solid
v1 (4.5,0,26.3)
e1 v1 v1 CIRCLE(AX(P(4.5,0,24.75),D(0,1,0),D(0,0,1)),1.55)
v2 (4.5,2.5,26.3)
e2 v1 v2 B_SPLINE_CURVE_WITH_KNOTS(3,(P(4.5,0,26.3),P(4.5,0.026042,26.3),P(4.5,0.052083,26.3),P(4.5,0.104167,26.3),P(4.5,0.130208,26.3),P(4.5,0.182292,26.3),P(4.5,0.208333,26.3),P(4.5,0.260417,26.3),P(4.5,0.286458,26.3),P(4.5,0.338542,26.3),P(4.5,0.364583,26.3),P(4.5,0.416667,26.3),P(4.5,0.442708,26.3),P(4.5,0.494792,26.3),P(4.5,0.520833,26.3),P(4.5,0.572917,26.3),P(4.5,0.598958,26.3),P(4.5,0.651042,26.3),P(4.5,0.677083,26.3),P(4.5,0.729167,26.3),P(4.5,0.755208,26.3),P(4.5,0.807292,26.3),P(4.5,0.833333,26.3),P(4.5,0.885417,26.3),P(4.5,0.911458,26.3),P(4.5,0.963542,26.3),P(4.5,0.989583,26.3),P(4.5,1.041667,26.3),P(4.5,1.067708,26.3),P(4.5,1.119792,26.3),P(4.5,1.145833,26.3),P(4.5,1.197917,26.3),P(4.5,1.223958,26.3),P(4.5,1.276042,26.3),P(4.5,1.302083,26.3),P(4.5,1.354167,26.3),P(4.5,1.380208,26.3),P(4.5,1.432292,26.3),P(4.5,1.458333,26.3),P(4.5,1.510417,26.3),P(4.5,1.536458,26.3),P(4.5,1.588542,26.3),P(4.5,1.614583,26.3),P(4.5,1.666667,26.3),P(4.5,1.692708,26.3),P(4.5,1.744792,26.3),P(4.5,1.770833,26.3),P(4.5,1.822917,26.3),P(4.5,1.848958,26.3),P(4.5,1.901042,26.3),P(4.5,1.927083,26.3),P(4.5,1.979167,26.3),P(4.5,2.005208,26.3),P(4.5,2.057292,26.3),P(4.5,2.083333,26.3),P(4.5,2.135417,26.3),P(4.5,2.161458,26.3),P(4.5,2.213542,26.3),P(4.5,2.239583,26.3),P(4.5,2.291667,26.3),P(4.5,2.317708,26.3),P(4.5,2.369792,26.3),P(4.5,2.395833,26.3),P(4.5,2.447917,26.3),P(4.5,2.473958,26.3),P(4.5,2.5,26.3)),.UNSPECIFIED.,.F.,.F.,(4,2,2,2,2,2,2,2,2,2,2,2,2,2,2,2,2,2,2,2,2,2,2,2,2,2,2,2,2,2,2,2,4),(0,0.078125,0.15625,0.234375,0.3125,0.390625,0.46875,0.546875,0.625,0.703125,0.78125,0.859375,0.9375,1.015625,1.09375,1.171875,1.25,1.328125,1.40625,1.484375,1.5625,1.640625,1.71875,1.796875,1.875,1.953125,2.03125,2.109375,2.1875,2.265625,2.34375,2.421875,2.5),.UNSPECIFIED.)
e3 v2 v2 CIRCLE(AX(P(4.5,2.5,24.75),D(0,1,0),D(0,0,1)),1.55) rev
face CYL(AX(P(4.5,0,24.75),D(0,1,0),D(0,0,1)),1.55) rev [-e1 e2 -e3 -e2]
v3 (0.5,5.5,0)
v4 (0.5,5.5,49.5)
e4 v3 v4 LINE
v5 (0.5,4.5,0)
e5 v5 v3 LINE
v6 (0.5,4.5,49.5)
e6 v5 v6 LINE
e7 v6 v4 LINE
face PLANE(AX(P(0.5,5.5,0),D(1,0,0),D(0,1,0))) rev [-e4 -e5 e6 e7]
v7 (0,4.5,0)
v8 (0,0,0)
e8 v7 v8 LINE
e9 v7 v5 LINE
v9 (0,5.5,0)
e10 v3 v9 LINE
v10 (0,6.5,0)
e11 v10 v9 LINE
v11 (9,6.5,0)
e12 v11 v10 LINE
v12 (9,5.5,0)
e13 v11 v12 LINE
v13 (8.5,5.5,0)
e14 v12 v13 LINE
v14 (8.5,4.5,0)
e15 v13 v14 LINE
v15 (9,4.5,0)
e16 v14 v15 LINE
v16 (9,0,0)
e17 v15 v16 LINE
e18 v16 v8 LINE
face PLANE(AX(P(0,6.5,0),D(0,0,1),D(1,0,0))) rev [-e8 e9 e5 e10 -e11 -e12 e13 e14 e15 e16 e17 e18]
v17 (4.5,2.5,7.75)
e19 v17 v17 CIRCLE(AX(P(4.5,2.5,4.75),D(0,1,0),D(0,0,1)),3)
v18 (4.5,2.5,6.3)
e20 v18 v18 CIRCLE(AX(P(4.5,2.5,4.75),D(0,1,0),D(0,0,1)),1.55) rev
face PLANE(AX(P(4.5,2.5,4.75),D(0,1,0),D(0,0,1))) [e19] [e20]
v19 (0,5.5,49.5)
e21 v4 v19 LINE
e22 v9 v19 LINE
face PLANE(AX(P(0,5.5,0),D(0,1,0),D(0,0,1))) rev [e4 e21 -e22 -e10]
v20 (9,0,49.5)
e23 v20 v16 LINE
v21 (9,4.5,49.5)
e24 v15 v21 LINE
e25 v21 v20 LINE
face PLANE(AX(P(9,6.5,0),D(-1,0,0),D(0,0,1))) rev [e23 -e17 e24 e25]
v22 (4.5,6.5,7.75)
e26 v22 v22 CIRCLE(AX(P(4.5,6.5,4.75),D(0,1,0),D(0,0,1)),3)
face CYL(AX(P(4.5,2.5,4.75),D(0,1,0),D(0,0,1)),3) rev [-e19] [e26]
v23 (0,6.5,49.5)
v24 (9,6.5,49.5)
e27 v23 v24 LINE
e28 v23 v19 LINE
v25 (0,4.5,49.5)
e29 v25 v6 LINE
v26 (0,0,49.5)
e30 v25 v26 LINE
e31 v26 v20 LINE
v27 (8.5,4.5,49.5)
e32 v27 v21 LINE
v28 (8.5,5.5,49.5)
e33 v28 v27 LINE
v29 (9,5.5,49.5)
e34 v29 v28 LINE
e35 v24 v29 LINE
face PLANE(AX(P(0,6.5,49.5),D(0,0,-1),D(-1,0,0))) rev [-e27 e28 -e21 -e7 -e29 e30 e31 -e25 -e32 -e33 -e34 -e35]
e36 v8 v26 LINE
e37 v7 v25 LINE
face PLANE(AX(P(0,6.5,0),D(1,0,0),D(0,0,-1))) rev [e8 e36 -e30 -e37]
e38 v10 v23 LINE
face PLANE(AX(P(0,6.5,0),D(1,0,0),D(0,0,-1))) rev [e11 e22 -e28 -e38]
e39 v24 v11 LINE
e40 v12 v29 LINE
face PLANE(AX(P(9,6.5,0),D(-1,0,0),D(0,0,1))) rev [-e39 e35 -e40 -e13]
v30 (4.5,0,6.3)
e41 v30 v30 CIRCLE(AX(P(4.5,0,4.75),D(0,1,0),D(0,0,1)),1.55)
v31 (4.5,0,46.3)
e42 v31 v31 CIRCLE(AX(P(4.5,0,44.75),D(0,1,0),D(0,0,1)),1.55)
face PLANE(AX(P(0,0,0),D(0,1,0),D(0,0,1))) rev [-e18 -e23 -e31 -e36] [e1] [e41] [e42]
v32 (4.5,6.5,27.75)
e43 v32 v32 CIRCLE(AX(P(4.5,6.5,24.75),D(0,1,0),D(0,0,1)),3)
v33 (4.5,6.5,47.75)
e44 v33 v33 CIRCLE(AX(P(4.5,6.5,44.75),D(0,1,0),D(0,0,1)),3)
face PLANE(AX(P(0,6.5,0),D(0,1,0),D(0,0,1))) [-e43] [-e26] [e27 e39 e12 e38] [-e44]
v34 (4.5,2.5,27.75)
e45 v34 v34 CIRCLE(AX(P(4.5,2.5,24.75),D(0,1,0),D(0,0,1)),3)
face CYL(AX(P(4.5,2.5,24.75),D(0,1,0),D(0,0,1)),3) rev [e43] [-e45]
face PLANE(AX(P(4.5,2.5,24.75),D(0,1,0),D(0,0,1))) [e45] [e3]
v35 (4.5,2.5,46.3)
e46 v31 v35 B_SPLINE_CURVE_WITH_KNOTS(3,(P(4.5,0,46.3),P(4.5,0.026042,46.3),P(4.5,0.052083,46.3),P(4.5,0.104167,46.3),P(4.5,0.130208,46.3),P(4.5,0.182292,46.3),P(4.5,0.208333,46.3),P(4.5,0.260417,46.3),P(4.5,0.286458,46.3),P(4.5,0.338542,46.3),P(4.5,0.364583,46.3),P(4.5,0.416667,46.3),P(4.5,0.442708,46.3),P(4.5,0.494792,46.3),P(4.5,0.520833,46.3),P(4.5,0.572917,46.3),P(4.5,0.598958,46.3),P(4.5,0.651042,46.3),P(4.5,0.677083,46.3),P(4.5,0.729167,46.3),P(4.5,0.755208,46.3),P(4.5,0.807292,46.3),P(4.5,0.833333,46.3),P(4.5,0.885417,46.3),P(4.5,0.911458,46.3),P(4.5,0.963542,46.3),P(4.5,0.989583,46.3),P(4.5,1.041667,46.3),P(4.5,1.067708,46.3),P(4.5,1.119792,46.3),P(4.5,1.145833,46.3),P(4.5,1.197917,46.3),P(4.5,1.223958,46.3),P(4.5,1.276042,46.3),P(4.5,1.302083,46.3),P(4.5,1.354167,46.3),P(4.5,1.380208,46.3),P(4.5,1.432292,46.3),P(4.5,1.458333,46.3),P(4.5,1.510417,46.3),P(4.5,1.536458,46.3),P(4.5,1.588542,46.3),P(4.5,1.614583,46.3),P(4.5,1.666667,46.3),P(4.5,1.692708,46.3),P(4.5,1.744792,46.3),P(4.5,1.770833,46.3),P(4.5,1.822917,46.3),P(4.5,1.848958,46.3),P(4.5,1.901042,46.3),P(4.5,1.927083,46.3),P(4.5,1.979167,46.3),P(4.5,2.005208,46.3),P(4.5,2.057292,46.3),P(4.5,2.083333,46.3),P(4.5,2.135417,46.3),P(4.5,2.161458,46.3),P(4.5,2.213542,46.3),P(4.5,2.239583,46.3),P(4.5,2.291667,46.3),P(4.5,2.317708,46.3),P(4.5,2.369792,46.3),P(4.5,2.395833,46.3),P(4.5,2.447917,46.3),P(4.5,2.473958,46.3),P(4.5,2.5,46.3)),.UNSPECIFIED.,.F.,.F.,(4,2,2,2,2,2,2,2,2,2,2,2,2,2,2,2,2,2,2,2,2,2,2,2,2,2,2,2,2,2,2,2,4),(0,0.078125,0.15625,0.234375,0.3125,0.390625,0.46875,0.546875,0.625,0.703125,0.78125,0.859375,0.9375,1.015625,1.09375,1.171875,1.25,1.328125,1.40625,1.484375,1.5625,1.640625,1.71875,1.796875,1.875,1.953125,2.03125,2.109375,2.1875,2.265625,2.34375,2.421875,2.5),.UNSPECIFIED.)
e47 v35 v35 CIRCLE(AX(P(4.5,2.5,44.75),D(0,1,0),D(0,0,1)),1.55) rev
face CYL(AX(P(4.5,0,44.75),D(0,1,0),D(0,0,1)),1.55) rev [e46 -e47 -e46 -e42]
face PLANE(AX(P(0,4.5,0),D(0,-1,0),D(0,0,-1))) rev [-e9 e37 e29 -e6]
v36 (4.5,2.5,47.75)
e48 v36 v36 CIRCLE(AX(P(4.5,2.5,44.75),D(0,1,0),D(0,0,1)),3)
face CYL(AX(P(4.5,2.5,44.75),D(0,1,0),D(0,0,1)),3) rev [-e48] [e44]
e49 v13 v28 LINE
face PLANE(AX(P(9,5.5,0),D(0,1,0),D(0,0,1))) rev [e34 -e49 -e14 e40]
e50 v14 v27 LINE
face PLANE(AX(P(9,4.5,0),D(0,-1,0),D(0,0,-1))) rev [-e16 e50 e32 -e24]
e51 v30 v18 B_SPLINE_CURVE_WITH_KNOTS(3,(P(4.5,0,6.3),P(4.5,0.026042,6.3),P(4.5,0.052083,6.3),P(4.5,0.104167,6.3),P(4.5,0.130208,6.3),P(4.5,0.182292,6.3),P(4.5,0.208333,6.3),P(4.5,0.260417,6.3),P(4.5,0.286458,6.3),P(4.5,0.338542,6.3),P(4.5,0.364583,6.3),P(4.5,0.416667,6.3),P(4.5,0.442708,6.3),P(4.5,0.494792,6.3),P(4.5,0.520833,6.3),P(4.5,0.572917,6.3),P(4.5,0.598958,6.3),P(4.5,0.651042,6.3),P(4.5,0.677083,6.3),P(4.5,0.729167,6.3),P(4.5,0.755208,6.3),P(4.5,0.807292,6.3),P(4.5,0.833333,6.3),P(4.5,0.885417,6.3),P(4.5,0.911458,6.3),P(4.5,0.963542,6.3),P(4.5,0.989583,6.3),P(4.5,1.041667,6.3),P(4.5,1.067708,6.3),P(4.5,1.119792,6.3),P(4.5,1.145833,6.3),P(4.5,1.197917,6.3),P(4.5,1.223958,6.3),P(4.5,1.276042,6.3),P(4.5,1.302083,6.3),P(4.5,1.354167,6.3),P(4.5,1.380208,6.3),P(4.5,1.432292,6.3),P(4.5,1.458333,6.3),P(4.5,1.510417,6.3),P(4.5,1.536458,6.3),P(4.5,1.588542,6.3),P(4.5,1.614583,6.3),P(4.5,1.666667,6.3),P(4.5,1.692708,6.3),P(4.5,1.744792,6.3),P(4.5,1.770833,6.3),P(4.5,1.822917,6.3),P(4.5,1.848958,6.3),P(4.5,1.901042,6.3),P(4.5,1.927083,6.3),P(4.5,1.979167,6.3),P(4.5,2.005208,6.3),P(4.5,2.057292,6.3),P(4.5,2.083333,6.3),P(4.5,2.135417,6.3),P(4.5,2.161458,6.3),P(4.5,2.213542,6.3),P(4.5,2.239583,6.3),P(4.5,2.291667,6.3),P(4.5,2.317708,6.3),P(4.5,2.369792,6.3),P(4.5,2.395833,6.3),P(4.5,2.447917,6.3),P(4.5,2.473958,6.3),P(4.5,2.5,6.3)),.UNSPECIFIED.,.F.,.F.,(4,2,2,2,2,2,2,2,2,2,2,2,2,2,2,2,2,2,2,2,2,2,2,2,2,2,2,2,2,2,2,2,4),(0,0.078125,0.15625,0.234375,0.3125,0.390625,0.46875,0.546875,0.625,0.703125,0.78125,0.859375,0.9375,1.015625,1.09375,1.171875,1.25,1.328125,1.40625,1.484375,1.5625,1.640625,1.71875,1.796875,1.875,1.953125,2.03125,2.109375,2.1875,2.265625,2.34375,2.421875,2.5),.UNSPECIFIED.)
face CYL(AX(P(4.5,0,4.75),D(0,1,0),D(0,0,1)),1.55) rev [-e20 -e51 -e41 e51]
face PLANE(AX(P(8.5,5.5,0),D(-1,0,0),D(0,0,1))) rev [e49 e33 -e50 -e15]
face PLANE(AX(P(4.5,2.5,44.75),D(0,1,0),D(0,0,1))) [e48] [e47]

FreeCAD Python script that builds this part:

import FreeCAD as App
import Part
import Sketcher


def add_polygon(sketch, points):
    """Adds a closed chain of lines whose ends are joined by coincident constraints."""
    first, n = sketch.GeometryCount, len(points)
    for a, b in zip(points, points[1:] + points[:1]):
        sketch.addGeometry(Part.LineSegment(App.Vector(*a, 0), App.Vector(*b, 0)), False)
    for i in range(n):
        sketch.addConstraint(Sketcher.Constraint("Coincident", first + i, 2, first + (i + 1) % n, 1))

doc = App.newDocument("Part")
body = doc.addObject("PartDesign::Body", "Body")

# Sketch on XZ plane
sketch1 = body.newObject("Sketcher::SketchObject", "Sketch")
sketch1.AttachmentSupport = (doc.getObject("XZ_Plane"), [""])
sketch1.MapMode = "FlatFace"
add_polygon(sketch1, [(0, 0), (0, 50), (9, 50), (9, 0)])  # lines 0-3
sketch1.addConstraint(Sketcher.Constraint("Vertical", 0))
sketch1.addConstraint(Sketcher.Constraint("Horizontal", 1))
sketch1.addConstraint(Sketcher.Constraint("Vertical", 2))
sketch1.addConstraint(Sketcher.Constraint("Horizontal", 3))
sketch1.addConstraint(Sketcher.Constraint("Coincident", 3, 2, -1, 1))
sketch1.addConstraint(Sketcher.Constraint("DistanceX", 1, 1, 1, 2, 9.0))
sketch1.addConstraint(Sketcher.Constraint("DistanceY", 0, 1, 0, 2, 49.5))
pad1 = body.newObject("PartDesign::Pad", "Pad")
pad1.Profile = sketch1
pad1.Length = 6.5
pad1.Reversed = True

# Sketch on XZ plane
sketch2 = body.newObject("Sketcher::SketchObject", "Sketch001")
sketch2.AttachmentSupport = (doc.getObject("XZ_Plane"), [""])
sketch2.MapMode = "FlatFace"
sketch2.AttachmentOffset = App.Placement(App.Vector(0, 0, -6.5), App.Rotation())
sketch2.addGeometry(Part.Circle(App.Vector(4.5, 24.8, 0), App.Vector(0, 0, 1), 1.6), False)
sketch2.addGeometry(Part.Circle(App.Vector(4.5, 4.8, 0), App.Vector(0, 0, 1), 1.6), False)
sketch2.addGeometry(Part.Circle(App.Vector(4.5, 44.8, 0), App.Vector(0, 0, 1), 1.6), False)
sketch2.addConstraint(Sketcher.Constraint("Equal", 0, 1))
sketch2.addConstraint(Sketcher.Constraint("Equal", 1, 2))
sketch2.addConstraint(Sketcher.Constraint("Vertical", 0, 3, 1, 3))
sketch2.addConstraint(Sketcher.Constraint("Vertical", 1, 3, 2, 3))
sketch2.addConstraint(Sketcher.Constraint("Diameter", 0, 3.1))
sketch2.addConstraint(Sketcher.Constraint("DistanceY", 1, 3, 0, 3, 20.0))
sketch2.addConstraint(Sketcher.Constraint("DistanceY", 0, 3, 2, 3, 20.0))
sketch2.addConstraint(Sketcher.Constraint("DistanceX", -1, 1, 0, 3, 4.5))
sketch2.addConstraint(Sketcher.Constraint("DistanceY", -1, 1, 0, 3, 24.75))
pocket1 = body.newObject("PartDesign::Pocket", "Pocket")
pocket1.Profile = sketch2
pocket1.Type = "ThroughAll"
pocket1.Reversed = True

# Sketch on XZ plane
sketch3 = body.newObject("Sketcher::SketchObject", "Sketch002")
sketch3.AttachmentSupport = (doc.getObject("XZ_Plane"), [""])
sketch3.MapMode = "FlatFace"
sketch3.AttachmentOffset = App.Placement(App.Vector(0, 0, -6.5), App.Rotation())
sketch3.addGeometry(Part.Circle(App.Vector(4.5, 44.8, 0), App.Vector(0, 0, 1), 3), False)
sketch3.addGeometry(Part.Circle(App.Vector(4.5, 24.8, 0), App.Vector(0, 0, 1), 3), False)
sketch3.addGeometry(Part.Circle(App.Vector(4.5, 4.8, 0), App.Vector(0, 0, 1), 3), False)
sketch3.addConstraint(Sketcher.Constraint("Equal", 0, 1))
sketch3.addConstraint(Sketcher.Constraint("Equal", 1, 2))
sketch3.addConstraint(Sketcher.Constraint("Vertical", 0, 3, 1, 3))
sketch3.addConstraint(Sketcher.Constraint("Vertical", 1, 3, 2, 3))
sketch3.addConstraint(Sketcher.Constraint("Diameter", 0, 6.0))
sketch3.addConstraint(Sketcher.Constraint("DistanceY", 1, 3, 0, 3, 20.0))
sketch3.addConstraint(Sketcher.Constraint("DistanceY", 2, 3, 1, 3, 20.0))
sketch3.addConstraint(Sketcher.Constraint("DistanceX", -1, 1, 0, 3, 4.5))
sketch3.addConstraint(Sketcher.Constraint("DistanceY", -1, 1, 0, 3, 44.75))
pocket2 = body.newObject("PartDesign::Pocket", "Pocket001")
pocket2.Profile = sketch3
pocket2.Length = 4
pocket2.Reversed = True

# Sketch on XY plane
sketch4 = body.newObject("Sketcher::SketchObject", "Sketch003")
sketch4.AttachmentSupport = (doc.getObject("XY_Plane"), [""])
sketch4.MapMode = "FlatFace"
sketch4.AttachmentOffset = App.Placement(App.Vector(0, 0, 49.5), App.Rotation())
add_polygon(sketch4, [(0, 5.5), (0, 4.5), (0.5, 4.5), (0.5, 5.5)])  # lines 0-3
add_polygon(sketch4, [(8.5, 5.5), (8.5, 4.5), (9, 4.5), (9, 5.5)])  # lines 4-7
sketch4.addConstraint(Sketcher.Constraint("Vertical", 0))
sketch4.addConstraint(Sketcher.Constraint("Horizontal", 1))
sketch4.addConstraint(Sketcher.Constraint("Vertical", 2))
sketch4.addConstraint(Sketcher.Constraint("Horizontal", 3))
sketch4.addConstraint(Sketcher.Constraint("Vertical", 4))
sketch4.addConstraint(Sketcher.Constraint("Horizontal", 5))
sketch4.addConstraint(Sketcher.Constraint("Vertical", 6))
sketch4.addConstraint(Sketcher.Constraint("Horizontal", 7))
sketch4.addConstraint(Sketcher.Constraint("PointOnObject", 0, 2, -2))
sketch4.addConstraint(Sketcher.Constraint("Horizontal", 1, 2, 4, 2))
sketch4.addConstraint(Sketcher.Constraint("Horizontal", 3, 2, 6, 2))
sketch4.addConstraint(Sketcher.Constraint("Equal", 3, 5))
sketch4.addConstraint(Sketcher.Constraint("DistanceY", 0, 2, 0, 1, 1.0))
sketch4.addConstraint(Sketcher.Constraint("DistanceX", 1, 1, 1, 2, 0.5))
sketch4.addConstraint(Sketcher.Constraint("DistanceX", -1, 1, 5, 2, 9.0))
sketch4.addConstraint(Sketcher.Constraint("DistanceY", -1, 1, 0, 2, 4.5))
pocket3 = body.newObject("PartDesign::Pocket", "Pocket002")
pocket3.Profile = sketch4
pocket3.Type = "ThroughAll"

doc.recompute()
